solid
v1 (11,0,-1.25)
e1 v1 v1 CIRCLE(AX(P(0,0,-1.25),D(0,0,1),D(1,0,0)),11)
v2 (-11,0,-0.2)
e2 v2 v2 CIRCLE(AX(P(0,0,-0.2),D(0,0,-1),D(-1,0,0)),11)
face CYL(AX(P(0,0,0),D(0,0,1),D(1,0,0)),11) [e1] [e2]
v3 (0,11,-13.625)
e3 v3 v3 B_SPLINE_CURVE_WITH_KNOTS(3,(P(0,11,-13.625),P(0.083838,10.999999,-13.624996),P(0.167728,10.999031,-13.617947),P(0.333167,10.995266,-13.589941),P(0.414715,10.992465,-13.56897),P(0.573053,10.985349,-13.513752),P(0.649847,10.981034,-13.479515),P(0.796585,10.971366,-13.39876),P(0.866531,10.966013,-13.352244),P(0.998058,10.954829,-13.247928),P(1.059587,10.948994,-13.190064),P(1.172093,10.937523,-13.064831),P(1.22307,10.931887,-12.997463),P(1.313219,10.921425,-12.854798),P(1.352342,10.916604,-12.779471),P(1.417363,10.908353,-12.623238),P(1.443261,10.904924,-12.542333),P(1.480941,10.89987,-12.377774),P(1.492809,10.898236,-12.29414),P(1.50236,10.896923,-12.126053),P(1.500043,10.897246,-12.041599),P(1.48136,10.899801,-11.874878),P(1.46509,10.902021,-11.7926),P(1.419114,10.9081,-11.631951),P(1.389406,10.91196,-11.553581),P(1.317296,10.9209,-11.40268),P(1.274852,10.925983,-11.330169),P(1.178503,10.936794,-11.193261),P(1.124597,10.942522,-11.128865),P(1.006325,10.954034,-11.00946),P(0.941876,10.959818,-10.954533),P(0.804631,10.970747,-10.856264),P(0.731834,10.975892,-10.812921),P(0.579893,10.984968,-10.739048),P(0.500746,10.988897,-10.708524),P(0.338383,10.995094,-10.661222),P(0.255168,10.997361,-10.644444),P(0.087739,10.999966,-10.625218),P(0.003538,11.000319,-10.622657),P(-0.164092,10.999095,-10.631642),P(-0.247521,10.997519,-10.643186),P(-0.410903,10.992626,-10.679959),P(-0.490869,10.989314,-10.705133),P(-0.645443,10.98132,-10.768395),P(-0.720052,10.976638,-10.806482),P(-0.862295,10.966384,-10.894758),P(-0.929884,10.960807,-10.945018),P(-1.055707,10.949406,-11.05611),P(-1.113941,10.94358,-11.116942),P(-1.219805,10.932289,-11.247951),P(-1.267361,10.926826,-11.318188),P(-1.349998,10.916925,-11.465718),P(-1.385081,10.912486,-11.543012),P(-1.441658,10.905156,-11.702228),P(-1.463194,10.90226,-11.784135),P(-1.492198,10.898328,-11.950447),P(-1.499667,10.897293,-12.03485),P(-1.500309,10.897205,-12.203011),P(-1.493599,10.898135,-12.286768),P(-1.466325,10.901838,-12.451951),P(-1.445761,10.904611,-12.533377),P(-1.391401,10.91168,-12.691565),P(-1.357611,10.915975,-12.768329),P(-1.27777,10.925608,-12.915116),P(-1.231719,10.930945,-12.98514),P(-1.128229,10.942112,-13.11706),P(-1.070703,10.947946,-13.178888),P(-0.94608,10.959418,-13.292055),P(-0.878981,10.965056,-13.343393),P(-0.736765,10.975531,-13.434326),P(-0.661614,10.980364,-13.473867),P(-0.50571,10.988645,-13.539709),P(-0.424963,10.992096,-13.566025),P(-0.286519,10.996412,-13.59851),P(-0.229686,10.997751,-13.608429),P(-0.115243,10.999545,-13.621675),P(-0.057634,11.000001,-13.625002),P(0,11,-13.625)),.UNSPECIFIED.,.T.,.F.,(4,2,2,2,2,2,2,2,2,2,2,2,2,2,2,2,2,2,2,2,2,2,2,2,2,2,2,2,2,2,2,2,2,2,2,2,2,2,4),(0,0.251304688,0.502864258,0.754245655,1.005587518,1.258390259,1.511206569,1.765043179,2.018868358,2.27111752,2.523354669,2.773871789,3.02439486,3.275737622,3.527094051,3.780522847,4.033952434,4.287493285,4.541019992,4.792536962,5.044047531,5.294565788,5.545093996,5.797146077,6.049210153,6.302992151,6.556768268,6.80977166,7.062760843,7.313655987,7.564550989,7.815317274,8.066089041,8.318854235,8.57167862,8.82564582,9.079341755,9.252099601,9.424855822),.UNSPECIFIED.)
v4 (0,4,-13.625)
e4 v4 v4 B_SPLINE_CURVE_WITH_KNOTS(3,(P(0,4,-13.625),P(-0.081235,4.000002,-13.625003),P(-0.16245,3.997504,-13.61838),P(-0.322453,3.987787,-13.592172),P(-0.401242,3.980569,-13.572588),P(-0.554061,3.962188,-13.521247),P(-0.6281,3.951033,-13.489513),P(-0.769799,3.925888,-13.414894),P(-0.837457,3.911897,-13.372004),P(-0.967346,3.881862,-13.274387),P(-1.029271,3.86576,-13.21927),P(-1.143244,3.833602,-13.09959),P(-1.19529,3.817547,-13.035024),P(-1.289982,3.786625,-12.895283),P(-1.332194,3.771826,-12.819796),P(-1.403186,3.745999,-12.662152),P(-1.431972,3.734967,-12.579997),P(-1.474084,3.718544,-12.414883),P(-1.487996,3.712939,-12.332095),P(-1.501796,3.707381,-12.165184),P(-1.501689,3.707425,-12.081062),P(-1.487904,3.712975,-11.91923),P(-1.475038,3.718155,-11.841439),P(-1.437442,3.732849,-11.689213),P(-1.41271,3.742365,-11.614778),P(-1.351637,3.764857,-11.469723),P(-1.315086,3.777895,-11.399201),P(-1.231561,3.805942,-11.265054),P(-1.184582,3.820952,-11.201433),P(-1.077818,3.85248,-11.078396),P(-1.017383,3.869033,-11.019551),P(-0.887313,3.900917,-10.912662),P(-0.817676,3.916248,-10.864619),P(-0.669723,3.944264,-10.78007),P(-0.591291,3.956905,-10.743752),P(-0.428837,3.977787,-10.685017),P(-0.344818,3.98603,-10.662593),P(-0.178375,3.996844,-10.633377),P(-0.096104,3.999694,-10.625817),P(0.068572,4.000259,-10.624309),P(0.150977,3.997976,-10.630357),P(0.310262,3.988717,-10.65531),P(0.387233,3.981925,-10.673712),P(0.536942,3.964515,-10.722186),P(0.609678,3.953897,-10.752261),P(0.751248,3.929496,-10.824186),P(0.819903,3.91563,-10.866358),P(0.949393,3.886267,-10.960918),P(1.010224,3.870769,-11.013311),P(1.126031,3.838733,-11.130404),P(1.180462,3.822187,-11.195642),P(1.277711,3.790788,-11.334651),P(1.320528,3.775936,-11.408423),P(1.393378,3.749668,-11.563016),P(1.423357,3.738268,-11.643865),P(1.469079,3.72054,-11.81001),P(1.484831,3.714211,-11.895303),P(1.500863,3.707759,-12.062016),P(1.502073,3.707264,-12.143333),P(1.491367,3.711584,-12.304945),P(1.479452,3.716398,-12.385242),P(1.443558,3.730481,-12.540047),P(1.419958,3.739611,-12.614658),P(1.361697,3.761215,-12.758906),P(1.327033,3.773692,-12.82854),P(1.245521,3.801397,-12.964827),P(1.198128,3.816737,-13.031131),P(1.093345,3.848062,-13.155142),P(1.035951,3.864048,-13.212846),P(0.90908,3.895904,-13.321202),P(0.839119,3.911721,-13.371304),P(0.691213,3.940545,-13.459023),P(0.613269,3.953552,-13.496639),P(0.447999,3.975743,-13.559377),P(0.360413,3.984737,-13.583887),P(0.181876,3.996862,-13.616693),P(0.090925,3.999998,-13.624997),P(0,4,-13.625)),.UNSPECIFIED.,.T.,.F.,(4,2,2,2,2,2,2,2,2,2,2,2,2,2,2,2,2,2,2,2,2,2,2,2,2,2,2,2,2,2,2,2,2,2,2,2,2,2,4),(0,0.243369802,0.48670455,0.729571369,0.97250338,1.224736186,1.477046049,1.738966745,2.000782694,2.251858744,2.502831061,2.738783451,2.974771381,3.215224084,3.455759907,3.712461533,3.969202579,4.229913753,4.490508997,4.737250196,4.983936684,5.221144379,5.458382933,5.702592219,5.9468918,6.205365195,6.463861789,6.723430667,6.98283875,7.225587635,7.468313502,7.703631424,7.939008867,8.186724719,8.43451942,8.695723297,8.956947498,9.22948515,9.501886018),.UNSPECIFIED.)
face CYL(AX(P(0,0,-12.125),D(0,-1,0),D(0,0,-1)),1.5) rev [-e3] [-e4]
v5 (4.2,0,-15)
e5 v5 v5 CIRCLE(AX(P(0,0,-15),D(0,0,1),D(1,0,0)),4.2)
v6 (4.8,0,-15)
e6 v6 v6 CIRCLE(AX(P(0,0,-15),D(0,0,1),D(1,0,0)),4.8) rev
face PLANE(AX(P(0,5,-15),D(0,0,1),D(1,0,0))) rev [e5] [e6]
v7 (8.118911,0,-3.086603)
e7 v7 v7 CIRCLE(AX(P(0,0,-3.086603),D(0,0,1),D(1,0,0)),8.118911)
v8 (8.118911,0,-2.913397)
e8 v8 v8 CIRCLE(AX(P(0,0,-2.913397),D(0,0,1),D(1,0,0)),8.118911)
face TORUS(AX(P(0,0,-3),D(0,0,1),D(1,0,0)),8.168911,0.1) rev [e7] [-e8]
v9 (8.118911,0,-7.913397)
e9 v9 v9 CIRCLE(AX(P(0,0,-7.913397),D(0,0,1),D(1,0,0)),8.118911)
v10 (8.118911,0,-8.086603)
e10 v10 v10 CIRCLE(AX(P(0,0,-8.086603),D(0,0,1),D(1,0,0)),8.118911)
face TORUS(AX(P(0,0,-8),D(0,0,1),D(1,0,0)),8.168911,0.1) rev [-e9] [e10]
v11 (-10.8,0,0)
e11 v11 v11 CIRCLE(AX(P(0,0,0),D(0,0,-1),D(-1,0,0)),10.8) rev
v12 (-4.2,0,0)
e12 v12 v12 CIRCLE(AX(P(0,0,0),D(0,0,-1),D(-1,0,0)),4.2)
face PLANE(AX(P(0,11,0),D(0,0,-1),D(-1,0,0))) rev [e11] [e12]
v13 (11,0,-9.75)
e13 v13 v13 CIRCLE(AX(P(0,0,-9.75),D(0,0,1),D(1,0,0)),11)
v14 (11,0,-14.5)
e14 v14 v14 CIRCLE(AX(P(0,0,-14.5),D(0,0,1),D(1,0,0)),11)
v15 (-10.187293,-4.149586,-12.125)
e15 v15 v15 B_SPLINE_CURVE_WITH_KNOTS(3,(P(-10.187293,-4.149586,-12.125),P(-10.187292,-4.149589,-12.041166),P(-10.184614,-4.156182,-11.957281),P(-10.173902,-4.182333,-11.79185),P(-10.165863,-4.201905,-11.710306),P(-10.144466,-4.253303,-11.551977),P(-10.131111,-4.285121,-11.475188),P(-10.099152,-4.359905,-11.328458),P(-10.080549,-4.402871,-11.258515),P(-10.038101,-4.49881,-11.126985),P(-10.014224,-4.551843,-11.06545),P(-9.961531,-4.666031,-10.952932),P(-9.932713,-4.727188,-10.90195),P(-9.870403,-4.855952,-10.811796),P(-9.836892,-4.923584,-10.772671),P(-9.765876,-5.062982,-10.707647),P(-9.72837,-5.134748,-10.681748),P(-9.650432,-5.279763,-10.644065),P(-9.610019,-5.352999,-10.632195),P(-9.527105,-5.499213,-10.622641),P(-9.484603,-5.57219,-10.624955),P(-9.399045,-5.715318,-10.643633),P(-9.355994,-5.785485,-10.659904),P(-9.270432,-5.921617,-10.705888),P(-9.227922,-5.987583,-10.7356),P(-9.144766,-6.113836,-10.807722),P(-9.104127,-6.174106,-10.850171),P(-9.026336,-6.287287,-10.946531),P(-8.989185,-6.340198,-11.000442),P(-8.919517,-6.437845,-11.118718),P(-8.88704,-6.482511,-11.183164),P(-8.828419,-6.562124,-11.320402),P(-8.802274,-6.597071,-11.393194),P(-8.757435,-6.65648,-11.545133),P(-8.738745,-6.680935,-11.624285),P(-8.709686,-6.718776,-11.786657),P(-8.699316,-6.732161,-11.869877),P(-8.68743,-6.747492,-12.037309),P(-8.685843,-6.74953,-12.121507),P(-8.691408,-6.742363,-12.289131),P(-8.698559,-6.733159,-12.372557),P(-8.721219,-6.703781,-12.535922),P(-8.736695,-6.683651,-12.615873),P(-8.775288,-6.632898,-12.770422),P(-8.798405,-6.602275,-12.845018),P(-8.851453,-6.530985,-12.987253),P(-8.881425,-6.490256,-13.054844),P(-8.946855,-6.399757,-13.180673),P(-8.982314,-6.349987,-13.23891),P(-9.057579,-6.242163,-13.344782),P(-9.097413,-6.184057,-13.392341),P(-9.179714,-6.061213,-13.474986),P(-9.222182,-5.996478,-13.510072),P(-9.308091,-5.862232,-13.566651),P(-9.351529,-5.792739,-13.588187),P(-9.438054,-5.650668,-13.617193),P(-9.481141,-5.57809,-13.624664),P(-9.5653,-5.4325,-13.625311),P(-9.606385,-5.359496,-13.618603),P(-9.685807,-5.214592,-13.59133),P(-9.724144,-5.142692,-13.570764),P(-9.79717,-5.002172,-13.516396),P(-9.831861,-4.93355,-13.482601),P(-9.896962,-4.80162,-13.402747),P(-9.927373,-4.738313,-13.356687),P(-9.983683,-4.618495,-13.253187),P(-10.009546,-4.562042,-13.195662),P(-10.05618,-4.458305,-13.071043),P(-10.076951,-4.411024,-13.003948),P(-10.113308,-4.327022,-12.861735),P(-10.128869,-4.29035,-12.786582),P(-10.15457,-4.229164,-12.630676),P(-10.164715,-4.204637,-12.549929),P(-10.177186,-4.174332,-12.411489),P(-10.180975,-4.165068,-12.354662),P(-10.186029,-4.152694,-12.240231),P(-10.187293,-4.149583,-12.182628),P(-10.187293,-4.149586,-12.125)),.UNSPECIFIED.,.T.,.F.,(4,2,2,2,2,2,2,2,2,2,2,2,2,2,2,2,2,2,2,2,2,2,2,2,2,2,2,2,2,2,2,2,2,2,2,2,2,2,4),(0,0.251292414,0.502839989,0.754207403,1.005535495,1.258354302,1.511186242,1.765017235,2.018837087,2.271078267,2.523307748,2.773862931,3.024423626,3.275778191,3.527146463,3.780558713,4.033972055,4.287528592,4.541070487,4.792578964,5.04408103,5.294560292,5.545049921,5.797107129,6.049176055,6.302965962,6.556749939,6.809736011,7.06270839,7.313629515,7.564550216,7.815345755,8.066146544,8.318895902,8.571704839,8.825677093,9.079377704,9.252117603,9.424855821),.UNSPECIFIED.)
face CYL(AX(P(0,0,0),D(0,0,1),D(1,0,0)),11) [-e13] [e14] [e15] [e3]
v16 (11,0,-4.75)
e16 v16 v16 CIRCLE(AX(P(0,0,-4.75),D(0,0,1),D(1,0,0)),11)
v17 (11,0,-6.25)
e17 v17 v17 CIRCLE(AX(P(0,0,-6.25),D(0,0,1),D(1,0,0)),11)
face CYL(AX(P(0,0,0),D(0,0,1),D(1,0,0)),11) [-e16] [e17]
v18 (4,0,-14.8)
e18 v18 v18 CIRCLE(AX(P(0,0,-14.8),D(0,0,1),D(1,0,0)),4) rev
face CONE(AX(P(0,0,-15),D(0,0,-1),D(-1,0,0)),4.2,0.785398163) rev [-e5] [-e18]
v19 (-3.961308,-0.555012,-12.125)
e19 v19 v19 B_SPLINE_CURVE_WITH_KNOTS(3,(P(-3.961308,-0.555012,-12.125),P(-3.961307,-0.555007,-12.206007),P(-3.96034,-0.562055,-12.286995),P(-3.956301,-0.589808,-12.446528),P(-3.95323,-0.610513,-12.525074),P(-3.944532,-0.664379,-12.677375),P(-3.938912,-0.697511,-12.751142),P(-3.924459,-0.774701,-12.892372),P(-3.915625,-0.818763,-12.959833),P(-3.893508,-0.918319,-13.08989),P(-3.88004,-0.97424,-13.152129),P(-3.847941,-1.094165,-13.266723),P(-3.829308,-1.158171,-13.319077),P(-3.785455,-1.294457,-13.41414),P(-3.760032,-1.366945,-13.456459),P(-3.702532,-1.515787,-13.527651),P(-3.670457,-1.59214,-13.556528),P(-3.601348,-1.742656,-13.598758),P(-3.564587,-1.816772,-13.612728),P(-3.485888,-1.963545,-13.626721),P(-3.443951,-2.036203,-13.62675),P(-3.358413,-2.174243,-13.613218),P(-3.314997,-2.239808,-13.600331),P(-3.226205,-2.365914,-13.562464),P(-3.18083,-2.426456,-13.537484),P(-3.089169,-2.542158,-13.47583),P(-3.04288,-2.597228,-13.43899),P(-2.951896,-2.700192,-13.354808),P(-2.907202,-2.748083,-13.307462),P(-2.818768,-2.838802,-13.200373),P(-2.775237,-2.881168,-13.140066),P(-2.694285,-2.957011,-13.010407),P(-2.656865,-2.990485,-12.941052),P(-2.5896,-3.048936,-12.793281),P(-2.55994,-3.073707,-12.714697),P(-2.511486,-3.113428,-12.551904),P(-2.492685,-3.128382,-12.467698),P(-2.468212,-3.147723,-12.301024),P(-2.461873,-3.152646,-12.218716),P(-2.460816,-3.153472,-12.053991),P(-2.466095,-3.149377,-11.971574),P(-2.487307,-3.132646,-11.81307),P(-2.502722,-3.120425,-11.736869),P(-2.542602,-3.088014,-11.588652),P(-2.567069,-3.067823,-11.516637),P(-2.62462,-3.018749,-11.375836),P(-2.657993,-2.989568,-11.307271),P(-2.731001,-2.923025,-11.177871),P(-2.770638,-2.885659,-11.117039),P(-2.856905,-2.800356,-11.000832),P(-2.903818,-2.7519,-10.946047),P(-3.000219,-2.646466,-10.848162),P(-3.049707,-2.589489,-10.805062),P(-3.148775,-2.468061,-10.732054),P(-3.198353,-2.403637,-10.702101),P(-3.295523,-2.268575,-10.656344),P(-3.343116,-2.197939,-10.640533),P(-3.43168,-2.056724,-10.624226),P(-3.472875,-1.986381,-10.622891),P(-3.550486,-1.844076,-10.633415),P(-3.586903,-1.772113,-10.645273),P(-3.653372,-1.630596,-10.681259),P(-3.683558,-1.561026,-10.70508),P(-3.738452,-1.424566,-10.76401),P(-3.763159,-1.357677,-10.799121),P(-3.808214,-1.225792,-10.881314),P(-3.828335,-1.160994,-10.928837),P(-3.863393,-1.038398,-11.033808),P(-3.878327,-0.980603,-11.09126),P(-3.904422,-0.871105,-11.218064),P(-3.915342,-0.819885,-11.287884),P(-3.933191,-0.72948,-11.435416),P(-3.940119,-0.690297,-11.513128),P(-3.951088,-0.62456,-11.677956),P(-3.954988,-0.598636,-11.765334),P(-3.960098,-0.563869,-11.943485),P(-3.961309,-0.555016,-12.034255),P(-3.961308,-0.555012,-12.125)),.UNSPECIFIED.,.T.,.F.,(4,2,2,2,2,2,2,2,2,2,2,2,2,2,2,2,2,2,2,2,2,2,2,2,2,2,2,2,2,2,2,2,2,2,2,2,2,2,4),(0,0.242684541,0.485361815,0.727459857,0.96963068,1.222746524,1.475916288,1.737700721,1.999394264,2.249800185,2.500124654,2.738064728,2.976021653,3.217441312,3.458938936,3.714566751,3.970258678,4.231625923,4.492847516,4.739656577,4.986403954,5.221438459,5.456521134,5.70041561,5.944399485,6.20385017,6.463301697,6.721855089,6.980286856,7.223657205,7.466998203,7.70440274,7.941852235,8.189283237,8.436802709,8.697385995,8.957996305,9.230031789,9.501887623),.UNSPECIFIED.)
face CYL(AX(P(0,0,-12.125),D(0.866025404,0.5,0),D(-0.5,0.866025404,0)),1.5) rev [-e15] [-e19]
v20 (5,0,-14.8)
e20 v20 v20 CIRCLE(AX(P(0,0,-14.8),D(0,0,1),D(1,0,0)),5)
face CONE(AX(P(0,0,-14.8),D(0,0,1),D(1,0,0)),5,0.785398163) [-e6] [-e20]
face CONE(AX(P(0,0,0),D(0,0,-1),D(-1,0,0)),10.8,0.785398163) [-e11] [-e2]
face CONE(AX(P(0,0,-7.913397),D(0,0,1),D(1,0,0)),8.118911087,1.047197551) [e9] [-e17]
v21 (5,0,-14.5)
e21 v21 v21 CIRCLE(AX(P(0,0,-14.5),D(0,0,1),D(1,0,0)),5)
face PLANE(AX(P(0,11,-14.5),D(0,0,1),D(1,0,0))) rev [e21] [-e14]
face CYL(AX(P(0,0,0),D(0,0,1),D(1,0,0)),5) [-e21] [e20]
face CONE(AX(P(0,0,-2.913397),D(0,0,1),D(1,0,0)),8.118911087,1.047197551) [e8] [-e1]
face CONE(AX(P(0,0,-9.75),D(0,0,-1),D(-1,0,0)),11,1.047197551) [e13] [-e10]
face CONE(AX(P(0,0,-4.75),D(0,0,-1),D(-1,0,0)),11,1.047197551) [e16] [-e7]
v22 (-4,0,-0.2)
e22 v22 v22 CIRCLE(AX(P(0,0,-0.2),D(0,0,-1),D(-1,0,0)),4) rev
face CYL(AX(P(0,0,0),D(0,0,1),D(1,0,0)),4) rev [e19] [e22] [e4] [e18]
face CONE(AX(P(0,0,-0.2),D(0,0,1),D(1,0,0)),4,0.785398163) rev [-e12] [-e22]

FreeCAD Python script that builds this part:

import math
import FreeCAD as App
import Part
import Sketcher
Q = App.Units.Quantity


def edges_at(feature, points):
    """Names of the edges that pass closest to the given points."""
    edges = feature.Shape.Edges
    near = lambda p: min(range(len(edges)), key=lambda i: edges[i].distToShape(Part.Vertex(*p))[0])
    return sorted({f"Edge{near(p) + 1}" for p in points})

doc = App.newDocument("Part")
body = doc.addObject("PartDesign::Body", "Body")

sketch1 = doc.addObject("Sketcher::SketchObject", "Sketch")
body.addObject(sketch1)
sketch1.AttachmentSupport = (doc.YZ_Plane, [""])
sketch1.MapMode = "FlatFace"
sketch1.addGeometry(Part.LineSegment(App.Vector(4, 0, 0), App.Vector(4, -15, 0)), False)
sketch1.addGeometry(Part.LineSegment(App.Vector(4, -15, 0), App.Vector(5, -15, 0)), False)
sketch1.addGeometry(Part.LineSegment(App.Vector(5, -15, 0), App.Vector(5, -14.5, 0)), False)
sketch1.addGeometry(Part.LineSegment(App.Vector(5, -14.5, 0), App.Vector(11, -14.5, 0)), False)
sketch1.addGeometry(Part.LineSegment(App.Vector(11, -14.5, 0), App.Vector(11, -9.75, 0)), False)
sketch1.addGeometry(Part.LineSegment(App.Vector(11, -9.75, 0), App.Vector(8.12, -8.09, 0)), False)
sketch1.addGeometry(Part.ArcOfCircle(Part.Circle(App.Vector(8.17, -8, 0), App.Vector(0, 0, 1), 0.1), math.radians(120), math.radians(240)), False)
sketch1.addGeometry(Part.LineSegment(App.Vector(8.12, -7.91, 0), App.Vector(11, -6.25, 0)), False)
sketch1.addGeometry(Part.LineSegment(App.Vector(11, -6.25, 0), App.Vector(11, -4.75, 0)), False)
sketch1.addGeometry(Part.LineSegment(App.Vector(11, -4.75, 0), App.Vector(8.12, -3.09, 0)), False)
sketch1.addGeometry(Part.ArcOfCircle(Part.Circle(App.Vector(8.17, -3, 0), App.Vector(0, 0, 1), 0.1), math.radians(120), math.radians(240)), False)
sketch1.addGeometry(Part.LineSegment(App.Vector(8.12, -2.91, 0), App.Vector(11, -1.25, 0)), False)
sketch1.addGeometry(Part.LineSegment(App.Vector(11, -1.25, 0), App.Vector(11, 0, 0)), False)
sketch1.addGeometry(Part.LineSegment(App.Vector(11, 0, 0), App.Vector(4, 0, 0)), False)
sketch1.addConstraint(Sketcher.Constraint("Coincident", 0, 2, 1, 1))
sketch1.addConstraint(Sketcher.Constraint("Coincident", 1, 2, 2, 1))
sketch1.addConstraint(Sketcher.Constraint("Coincident", 2, 2, 3, 1))
sketch1.addConstraint(Sketcher.Constraint("Coincident", 3, 2, 4, 1))
sketch1.addConstraint(Sketcher.Constraint("Coincident", 4, 2, 5, 1))
sketch1.addConstraint(Sketcher.Constraint("Tangent", 5, 2, 6, 2))
sketch1.addConstraint(Sketcher.Constraint("Tangent", 6, 1, 7, 1))
sketch1.addConstraint(Sketcher.Constraint("Coincident", 7, 2, 8, 1))
sketch1.addConstraint(Sketcher.Constraint("Coincident", 8, 2, 9, 1))
sketch1.addConstraint(Sketcher.Constraint("Tangent", 9, 2, 10, 2))
sketch1.addConstraint(Sketcher.Constraint("Tangent", 10, 1, 11, 1))
sketch1.addConstraint(Sketcher.Constraint("Coincident", 11, 2, 12, 1))
sketch1.addConstraint(Sketcher.Constraint("Coincident", 12, 2, 13, 1))
sketch1.addConstraint(Sketcher.Constraint("Coincident", 13, 2, 0, 1))
sketch1.addConstraint(Sketcher.Constraint("Vertical", 0))
sketch1.addConstraint(Sketcher.Constraint("Horizontal", 1))
sketch1.addConstraint(Sketcher.Constraint("Vertical", 2))
sketch1.addConstraint(Sketcher.Constraint("Horizontal", 3))
sketch1.addConstraint(Sketcher.Constraint("Vertical", 4))
sketch1.addConstraint(Sketcher.Constraint("Vertical", 8))
sketch1.addConstraint(Sketcher.Constraint("Vertical", 12))
sketch1.addConstraint(Sketcher.Constraint("Horizontal", 13))
sketch1.addConstraint(Sketcher.Constraint("Equal", 6, 10))
sketch1.addConstraint(Sketcher.Constraint("PointOnObject", 12, 2, -1))
sketch1.addConstraint(Sketcher.Constraint("Parallel", 5, 9))
sketch1.addConstraint(Sketcher.Constraint("Parallel", 7, 11))
sketch1.addConstraint(Sketcher.Constraint("Vertical", 6, 3, 10, 3))
sketch1.addConstraint(Sketcher.Constraint("Vertical", 5, 2, 6, 1))
sketch1.addConstraint(Sketcher.Constraint("Vertical", 4, 2, 7, 2))
sketch1.addConstraint(Sketcher.Constraint("Vertical", 8, 2, 11, 2))
sketch1.addConstraint(Sketcher.Constraint("Radius", 6, Q("0.1 mm")))
sketch1.addConstraint(Sketcher.Constraint("DistanceX", 1, 1, 1, 2, Q("1 mm")))
sketch1.addConstraint(Sketcher.Constraint("DistanceX", 3, 1, 3, 2, Q("6 mm")))
sketch1.addConstraint(Sketcher.Constraint("DistanceY", 0, 2, 0, 1, Q("15 mm")))
sketch1.addConstraint(Sketcher.Constraint("Angle", 5, Q("150 deg")))
sketch1.addConstraint(Sketcher.Constraint("DistanceY", 2, 1, 2, 2, Q("0.5 mm")))
sketch1.addConstraint(Sketcher.Constraint("DistanceY", 8, 1, 8, 2, Q("1.5 mm")))
sketch1.addConstraint(Sketcher.Constraint("DistanceY", 6, 3, -1, 1, Q("8 mm")))
sketch1.addConstraint(Sketcher.Constraint("DistanceY", 10, 3, -1, 1, Q("3 mm")))
sketch1.addConstraint(Sketcher.Constraint("DistanceX", -1, 1, 0, 2, Q("4 mm")))
revolution = doc.addObject("PartDesign::Revolution", "Revolution")
body.addObject(revolution)
revolution.Profile = sketch1
revolution.ReferenceAxis = (sketch1, ["V_Axis"])
revolution.Angle = 360

sketch2 = doc.addObject("Sketcher::SketchObject", "Sketch001")
body.addObject(sketch2)
sketch2.AttachmentSupport = (doc.YZ_Plane, [""])
sketch2.MapMode = "FlatFace"
sketch2.addGeometry(Part.LineSegment(App.Vector(15, -12.1, 0), App.Vector(0, -12.1, 0)), False)
sketch2.addGeometry(Part.LineSegment(App.Vector(0, -12.1, 0), App.Vector(0, -13.6, 0)), False)
sketch2.addGeometry(Part.LineSegment(App.Vector(0, -13.6, 0), App.Vector(15, -13.6, 0)), False)
sketch2.addGeometry(Part.LineSegment(App.Vector(15, -13.6, 0), App.Vector(15, -12.1, 0)), False)
sketch2.addGeometry(Part.LineSegment(App.Vector(0, -12.1, 0), App.Vector(15, -12.1, 0)), True)
sketch2.addConstraint(Sketcher.Constraint("Coincident", 0, 2, 1, 1))
sketch2.addConstraint(Sketcher.Constraint("Coincident", 1, 2, 2, 1))
sketch2.addConstraint(Sketcher.Constraint("Coincident", 2, 2, 3, 1))
sketch2.addConstraint(Sketcher.Constraint("Coincident", 3, 2, 0, 1))
sketch2.addConstraint(Sketcher.Constraint("Horizontal", 0))
sketch2.addConstraint(Sketcher.Constraint("Vertical", 1))
sketch2.addConstraint(Sketcher.Constraint("Horizontal", 2))
sketch2.addConstraint(Sketcher.Constraint("Vertical", 3))
sketch2.addConstraint(Sketcher.Constraint("Horizontal", 4))
sketch2.addConstraint(Sketcher.Constraint("Coincident", 4, 1, 0, 2))
sketch2.addConstraint(Sketcher.Constraint("PointOnObject", 0, 2, -2))
sketch2.addConstraint(Sketcher.Constraint("Vertical", 2, 2, 4, 2))
sketch2.addConstraint(Sketcher.Constraint("DistanceY", 1, 2, 1, 1, Q("1.5 mm")))
sketch2.addConstraint(Sketcher.Constraint("DistanceY", 0, 2, -1, 1, Q("12.125 mm")))
sketch2.addConstraint(Sketcher.Constraint("DistanceX", 0, 2, 0, 1, Q("15.026279 mm")))
groove = doc.addObject("PartDesign::Groove", "Groove")
body.addObject(groove)
groove.Profile = sketch2
groove.ReferenceAxis = (sketch2, ["Axis0"])
groove.Angle = 360
doc.recompute()

polarpattern = doc.addObject("PartDesign::PolarPattern", "PolarPattern")
body.addObject(polarpattern)
polarpattern.Originals = [groove]
polarpattern.Axis = (doc.Z_Axis, [""])
polarpattern.Angle = 120
polarpattern.Occurrences = 2
body.Tip = polarpattern
doc.recompute()

chamfer = doc.addObject("PartDesign::Chamfer", "Chamfer")
body.addObject(chamfer)
chamfer.Base = (polarpattern, edges_at(polarpattern, [
    (-5, 0, -15),
    (-11, 0, 0),
    (-4, 0, 0),
    (-4, 0, -15),
]))
chamfer.Size = 0.2

doc.recompute()
